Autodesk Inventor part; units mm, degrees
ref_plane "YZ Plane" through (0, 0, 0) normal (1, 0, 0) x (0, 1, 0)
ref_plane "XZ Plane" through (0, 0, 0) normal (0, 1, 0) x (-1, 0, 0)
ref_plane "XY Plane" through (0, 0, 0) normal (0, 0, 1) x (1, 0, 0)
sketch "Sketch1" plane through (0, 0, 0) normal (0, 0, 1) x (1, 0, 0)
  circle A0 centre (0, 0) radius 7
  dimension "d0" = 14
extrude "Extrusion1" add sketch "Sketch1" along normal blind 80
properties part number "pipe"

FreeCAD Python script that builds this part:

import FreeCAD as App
import Part
import Sketcher

V = App.Vector
Q = App.Units.Quantity

doc = App.newDocument("Part")
body = doc.addObject("PartDesign::Body", "Body")

# Sketch on XY plane
sketch1 = body.newObject("Sketcher::SketchObject", "Sketch")
sketch1.AttachmentSupport = (doc.getObject("XY_Plane"), [""])
sketch1.MapMode = "FlatFace"
sketch1.addGeometry(Part.Circle(V(0, 0, 0), V(0, 0, 1), 7), False)
sketch1.addConstraint([
    Sketcher.Constraint("Coincident", 0, 3, -1, 1),
    Sketcher.Constraint("Diameter", 0, Q("14 mm")),
])
pad1 = body.newObject("PartDesign::Pad", "Pad")
pad1.Profile = sketch1
pad1.Length = 80

doc.recompute()
